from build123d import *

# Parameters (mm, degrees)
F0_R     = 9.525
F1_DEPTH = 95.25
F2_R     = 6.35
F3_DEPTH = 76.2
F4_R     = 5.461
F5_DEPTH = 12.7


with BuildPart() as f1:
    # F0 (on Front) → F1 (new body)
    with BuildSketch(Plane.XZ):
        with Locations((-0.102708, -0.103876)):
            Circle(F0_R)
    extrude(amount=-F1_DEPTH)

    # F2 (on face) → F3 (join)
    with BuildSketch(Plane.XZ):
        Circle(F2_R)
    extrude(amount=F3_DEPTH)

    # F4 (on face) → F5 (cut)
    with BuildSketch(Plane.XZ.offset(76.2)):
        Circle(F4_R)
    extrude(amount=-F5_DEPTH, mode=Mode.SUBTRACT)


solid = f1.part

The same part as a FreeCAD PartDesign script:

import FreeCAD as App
import Part
import Sketcher
from FreeCAD import Vector
Q = App.Units.Quantity

doc = App.newDocument("Part")
body = doc.addObject("PartDesign::Body", "Body")

sketch1 = body.newObject("Sketcher::SketchObject", "Sketch")
sketch1.AttachmentSupport = (doc.getObject("XZ_Plane"), [""])
sketch1.MapMode = "FlatFace"
sketch1.addGeometry(Part.Circle(Vector(-0.102708, -0.103876, 0), Vector(0, 0, 1), 9.525), False)
sketch1.addConstraint(Sketcher.Constraint("Diameter", 0, Q("0.75 in")))
sketch1.addConstraint(Sketcher.Constraint("DistanceX", 0, 3, -1, 1, Q("0.102708 mm")))
sketch1.addConstraint(Sketcher.Constraint("DistanceY", 0, 3, -1, 1, Q("0.103876 mm")))
pad1 = body.newObject("PartDesign::Pad", "Pad")
pad1.Profile = sketch1
pad1.Length = Q("3.75 in")
pad1.Reversed = True

sketch2 = body.newObject("Sketcher::SketchObject", "Sketch001")
sketch2.AttachmentSupport = (doc.getObject("XZ_Plane"), [""])
sketch2.MapMode = "FlatFace"
sketch2.addGeometry(Part.Circle(Vector(0, 0, 0), Vector(0, 0, 1), 6.35), False)
sketch2.addConstraint(Sketcher.Constraint("Coincident", 0, 3, -1, 1))
sketch2.addConstraint(Sketcher.Constraint("Diameter", 0, Q("0.5 in")))
pad2 = body.newObject("PartDesign::Pad", "Pad001")
pad2.Profile = sketch2
pad2.Length = Q("3 in")

sketch3 = body.newObject("Sketcher::SketchObject", "Sketch002")
sketch3.AttachmentSupport = (doc.getObject("XZ_Plane"), [""])
sketch3.MapMode = "FlatFace"
sketch3.AttachmentOffset = App.Placement(Vector(0, 0, 3 * 25.4), App.Rotation())
sketch3.addGeometry(Part.Circle(Vector(0, 0, 0), Vector(0, 0, 1), 5.461), False)
sketch3.addConstraint(Sketcher.Constraint("Coincident", 0, 3, -1, 1))
sketch3.addConstraint(Sketcher.Constraint("Diameter", 0, Q("0.43 in")))
pocket1 = body.newObject("PartDesign::Pocket", "Pocket")
pocket1.Profile = sketch3
pocket1.Length = Q("0.5 in")

doc.recompute()
